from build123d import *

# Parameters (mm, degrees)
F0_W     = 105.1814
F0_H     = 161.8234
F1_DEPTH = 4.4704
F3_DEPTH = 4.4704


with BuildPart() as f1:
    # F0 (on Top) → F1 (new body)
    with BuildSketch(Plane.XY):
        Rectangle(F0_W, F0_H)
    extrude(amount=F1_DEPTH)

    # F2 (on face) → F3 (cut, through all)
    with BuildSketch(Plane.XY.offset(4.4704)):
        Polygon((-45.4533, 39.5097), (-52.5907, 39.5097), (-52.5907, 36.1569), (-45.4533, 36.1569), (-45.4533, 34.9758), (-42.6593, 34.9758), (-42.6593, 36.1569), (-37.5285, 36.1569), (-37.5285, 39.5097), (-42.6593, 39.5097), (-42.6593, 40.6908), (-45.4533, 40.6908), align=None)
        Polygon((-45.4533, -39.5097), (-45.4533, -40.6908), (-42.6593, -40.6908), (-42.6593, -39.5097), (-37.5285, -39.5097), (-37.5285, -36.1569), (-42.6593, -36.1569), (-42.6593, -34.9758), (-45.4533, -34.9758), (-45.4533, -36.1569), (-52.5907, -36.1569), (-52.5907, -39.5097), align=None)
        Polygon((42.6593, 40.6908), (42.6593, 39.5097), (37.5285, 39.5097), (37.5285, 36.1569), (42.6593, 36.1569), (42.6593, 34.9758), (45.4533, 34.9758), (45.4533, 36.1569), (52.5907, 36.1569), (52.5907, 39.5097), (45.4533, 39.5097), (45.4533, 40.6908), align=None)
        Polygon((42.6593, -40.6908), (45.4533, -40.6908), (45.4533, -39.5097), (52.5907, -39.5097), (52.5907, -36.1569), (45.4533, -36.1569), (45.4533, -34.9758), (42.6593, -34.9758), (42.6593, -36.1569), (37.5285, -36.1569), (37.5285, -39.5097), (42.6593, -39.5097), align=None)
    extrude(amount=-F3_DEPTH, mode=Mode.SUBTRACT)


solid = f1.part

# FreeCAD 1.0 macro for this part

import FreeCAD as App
import Part
import Sketcher

V = App.Vector
Q = App.Units.Quantity

doc = App.newDocument("Part")
body = doc.addObject("PartDesign::Body", "Body")

# Sketch on XY plane
sketch1 = doc.addObject("Sketcher::SketchObject", "Sketch")
body.addObject(sketch1)
sketch1.AttachmentSupport = (doc.XY_Plane, [""])
sketch1.MapMode = "FlatFace"
sketch1.addGeometry(Part.LineSegment(V(-53, 81, 0), V(-53, -81, 0)), False)
sketch1.addGeometry(Part.LineSegment(V(-53, -81, 0), V(53, -81, 0)), False)
sketch1.addGeometry(Part.LineSegment(V(53, -81, 0), V(53, 81, 0)), False)
sketch1.addGeometry(Part.LineSegment(V(53, 81, 0), V(-53, 81, 0)), False)
sketch1.addConstraint(Sketcher.Constraint("Coincident", 0, 2, 1, 1))
sketch1.addConstraint(Sketcher.Constraint("Coincident", 1, 2, 2, 1))
sketch1.addConstraint(Sketcher.Constraint("Coincident", 2, 2, 3, 1))
sketch1.addConstraint(Sketcher.Constraint("Coincident", 3, 2, 0, 1))
sketch1.addConstraint(Sketcher.Constraint("Vertical", 0))
sketch1.addConstraint(Sketcher.Constraint("Horizontal", 1))
sketch1.addConstraint(Sketcher.Constraint("Vertical", 2))
sketch1.addConstraint(Sketcher.Constraint("Horizontal", 3))
sketch1.addConstraint(Sketcher.Constraint("Symmetric", 0, 2, 2, 2, -1, 1))
sketch1.addConstraint(Sketcher.Constraint("DistanceX", 1, 1, 1, 2, Q("4.141 in")))
sketch1.addConstraint(Sketcher.Constraint("DistanceY", 0, 2, 0, 1, Q("6.371 in")))
pad1 = doc.addObject("PartDesign::Pad", "Pad")
body.addObject(pad1)
pad1.Profile = sketch1
pad1.Length = Q("0.176 in")

# Sketch on XY plane
sketch2 = doc.addObject("Sketcher::SketchObject", "Sketch001")
body.addObject(sketch2)
sketch2.AttachmentSupport = (doc.XY_Plane, [""])
sketch2.MapMode = "FlatFace"
sketch2.AttachmentOffset = App.Placement(V(0, 0, 0.176 * 25.4), App.Rotation())
sketch2.addGeometry(Part.LineSegment(V(-45.5, 39.5, 0), V(-52.6, 39.5, 0)), False)
sketch2.addGeometry(Part.LineSegment(V(-52.6, 39.5, 0), V(-52.6, 36.2, 0)), False)
sketch2.addGeometry(Part.LineSegment(V(-52.6, 36.2, 0), V(-45.5, 36.2, 0)), False)
sketch2.addGeometry(Part.LineSegment(V(-45.5, 36.2, 0), V(-45.5, 35, 0)), False)
sketch2.addGeometry(Part.LineSegment(V(-45.5, 35, 0), V(-42.7, 35, 0)), False)
sketch2.addGeometry(Part.LineSegment(V(-42.7, 35, 0), V(-42.7, 36.2, 0)), False)
sketch2.addGeometry(Part.LineSegment(V(-42.7, 36.2, 0), V(-37.5, 36.2, 0)), False)
sketch2.addGeometry(Part.LineSegment(V(-37.5, 36.2, 0), V(-37.5, 39.5, 0)), False)
sketch2.addGeometry(Part.LineSegment(V(-37.5, 39.5, 0), V(-42.7, 39.5, 0)), False)
sketch2.addGeometry(Part.LineSegment(V(-42.7, 39.5, 0), V(-42.7, 40.7, 0)), False)
sketch2.addGeometry(Part.LineSegment(V(-42.7, 40.7, 0), V(-45.5, 40.7, 0)), False)
sketch2.addGeometry(Part.LineSegment(V(-45.5, 40.7, 0), V(-45.5, 39.5, 0)), False)
sketch2.addGeometry(Part.LineSegment(V(-45.5, -39.5, 0), V(-45.5, -40.7, 0)), False)
sketch2.addGeometry(Part.LineSegment(V(-45.5, -40.7, 0), V(-42.7, -40.7, 0)), False)
sketch2.addGeometry(Part.LineSegment(V(-42.7, -40.7, 0), V(-42.7, -39.5, 0)), False)
sketch2.addGeometry(Part.LineSegment(V(-42.7, -39.5, 0), V(-37.5, -39.5, 0)), False)
sketch2.addGeometry(Part.LineSegment(V(-37.5, -39.5, 0), V(-37.5, -36.2, 0)), False)
sketch2.addGeometry(Part.LineSegment(V(-37.5, -36.2, 0), V(-42.7, -36.2, 0)), False)
sketch2.addGeometry(Part.LineSegment(V(-42.7, -36.2, 0), V(-42.7, -35, 0)), False)
sketch2.addGeometry(Part.LineSegment(V(-42.7, -35, 0), V(-45.5, -35, 0)), False)
sketch2.addGeometry(Part.LineSegment(V(-45.5, -35, 0), V(-45.5, -36.2, 0)), False)
sketch2.addGeometry(Part.LineSegment(V(-45.5, -36.2, 0), V(-52.6, -36.2, 0)), False)
sketch2.addGeometry(Part.LineSegment(V(-52.6, -36.2, 0), V(-52.6, -39.5, 0)), False)
sketch2.addGeometry(Part.LineSegment(V(-52.6, -39.5, 0), V(-45.5, -39.5, 0)), False)
sketch2.addGeometry(Part.LineSegment(V(42.7, 40.7, 0), V(42.7, 39.5, 0)), False)
sketch2.addGeometry(Part.LineSegment(V(42.7, 39.5, 0), V(37.5, 39.5, 0)), False)
sketch2.addGeometry(Part.LineSegment(V(37.5, 39.5, 0), V(37.5, 36.2, 0)), False)
sketch2.addGeometry(Part.LineSegment(V(37.5, 36.2, 0), V(42.7, 36.2, 0)), False)
sketch2.addGeometry(Part.LineSegment(V(42.7, 36.2, 0), V(42.7, 35, 0)), False)
sketch2.addGeometry(Part.LineSegment(V(42.7, 35, 0), V(45.5, 35, 0)), False)
sketch2.addGeometry(Part.LineSegment(V(45.5, 35, 0), V(45.5, 36.2, 0)), False)
sketch2.addGeometry(Part.LineSegment(V(45.5, 36.2, 0), V(52.6, 36.2, 0)), False)
sketch2.addGeometry(Part.LineSegment(V(52.6, 36.2, 0), V(52.6, 39.5, 0)), False)
sketch2.addGeometry(Part.LineSegment(V(52.6, 39.5, 0), V(45.5, 39.5, 0)), False)
sketch2.addGeometry(Part.LineSegment(V(45.5, 39.5, 0), V(45.5, 40.7, 0)), False)
sketch2.addGeometry(Part.LineSegment(V(45.5, 40.7, 0), V(42.7, 40.7, 0)), False)
sketch2.addGeometry(Part.LineSegment(V(42.7, -40.7, 0), V(45.5, -40.7, 0)), False)
sketch2.addGeometry(Part.LineSegment(V(45.5, -40.7, 0), V(45.5, -39.5, 0)), False)
sketch2.addGeometry(Part.LineSegment(V(45.5, -39.5, 0), V(52.6, -39.5, 0)), False)
sketch2.addGeometry(Part.LineSegment(V(52.6, -39.5, 0), V(52.6, -36.2, 0)), False)
sketch2.addGeometry(Part.LineSegment(V(52.6, -36.2, 0), V(45.5, -36.2, 0)), False)
sketch2.addGeometry(Part.LineSegment(V(45.5, -36.2, 0), V(45.5, -35, 0)), False)
sketch2.addGeometry(Part.LineSegment(V(45.5, -35, 0), V(42.7, -35, 0)), False)
sketch2.addGeometry(Part.LineSegment(V(42.7, -35, 0), V(42.7, -36.2, 0)), False)
sketch2.addGeometry(Part.LineSegment(V(42.7, -36.2, 0), V(37.5, -36.2, 0)), False)
sketch2.addGeometry(Part.LineSegment(V(37.5, -36.2, 0), V(37.5, -39.5, 0)), False)
sketch2.addGeometry(Part.LineSegment(V(37.5, -39.5, 0), V(42.7, -39.5, 0)), False)
sketch2.addGeometry(Part.LineSegment(V(42.7, -39.5, 0), V(42.7, -40.7, 0)), False)
sketch2.addConstraint(Sketcher.Constraint("Coincident", 0, 2, 1, 1))
sketch2.addConstraint(Sketcher.Constraint("Coincident", 1, 2, 2, 1))
sketch2.addConstraint(Sketcher.Constraint("Coincident", 2, 2, 3, 1))
sketch2.addConstraint(Sketcher.Constraint("Coincident", 3, 2, 4, 1))
sketch2.addConstraint(Sketcher.Constraint("Coincident", 4, 2, 5, 1))
sketch2.addConstraint(Sketcher.Constraint("Coincident", 5, 2, 6, 1))
sketch2.addConstraint(Sketcher.Constraint("Coincident", 6, 2, 7, 1))
sketch2.addConstraint(Sketcher.Constraint("Coincident", 7, 2, 8, 1))
sketch2.addConstraint(Sketcher.Constraint("Coincident", 8, 2, 9, 1))
sketch2.addConstraint(Sketcher.Constraint("Coincident", 9, 2, 10, 1))
sketch2.addConstraint(Sketcher.Constraint("Coincident", 10, 2, 11, 1))
sketch2.addConstraint(Sketcher.Constraint("Coincident", 11, 2, 0, 1))
sketch2.addConstraint(Sketcher.Constraint("Coincident", 12, 2, 13, 1))
sketch2.addConstraint(Sketcher.Constraint("Coincident", 13, 2, 14, 1))
sketch2.addConstraint(Sketcher.Constraint("Coincident", 14, 2, 15, 1))
sketch2.addConstraint(Sketcher.Constraint("Coincident", 15, 2, 16, 1))
sketch2.addConstraint(Sketcher.Constraint("Coincident", 16, 2, 17, 1))
sketch2.addConstraint(Sketcher.Constraint("Coincident", 17, 2, 18, 1))
sketch2.addConstraint(Sketcher.Constraint("Coincident", 18, 2, 19, 1))
sketch2.addConstraint(Sketcher.Constraint("Coincident", 19, 2, 20, 1))
sketch2.addConstraint(Sketcher.Constraint("Coincident", 20, 2, 21, 1))
sketch2.addConstraint(Sketcher.Constraint("Coincident", 21, 2, 22, 1))
sketch2.addConstraint(Sketcher.Constraint("Coincident", 22, 2, 23, 1))
sketch2.addConstraint(Sketcher.Constraint("Coincident", 23, 2, 12, 1))
sketch2.addConstraint(Sketcher.Constraint("Coincident", 24, 2, 25, 1))
sketch2.addConstraint(Sketcher.Constraint("Coincident", 25, 2, 26, 1))
sketch2.addConstraint(Sketcher.Constraint("Coincident", 26, 2, 27, 1))
sketch2.addConstraint(Sketcher.Constraint("Coincident", 27, 2, 28, 1))
sketch2.addConstraint(Sketcher.Constraint("Coincident", 28, 2, 29, 1))
sketch2.addConstraint(Sketcher.Constraint("Coincident", 29, 2, 30, 1))
sketch2.addConstraint(Sketcher.Constraint("Coincident", 30, 2, 31, 1))
sketch2.addConstraint(Sketcher.Constraint("Coincident", 31, 2, 32, 1))
sketch2.addConstraint(Sketcher.Constraint("Coincident", 32, 2, 33, 1))
sketch2.addConstraint(Sketcher.Constraint("Coincident", 33, 2, 34, 1))
sketch2.addConstraint(Sketcher.Constraint("Coincident", 34, 2, 35, 1))
sketch2.addConstraint(Sketcher.Constraint("Coincident", 35, 2, 24, 1))
sketch2.addConstraint(Sketcher.Constraint("Coincident", 36, 2, 37, 1))
sketch2.addConstraint(Sketcher.Constraint("Coincident", 37, 2, 38, 1))
sketch2.addConstraint(Sketcher.Constraint("Coincident", 38, 2, 39, 1))
sketch2.addConstraint(Sketcher.Constraint("Coincident", 39, 2, 40, 1))
sketch2.addConstraint(Sketcher.Constraint("Coincident", 40, 2, 41, 1))
sketch2.addConstraint(Sketcher.Constraint("Coincident", 41, 2, 42, 1))
sketch2.addConstraint(Sketcher.Constraint("Coincident", 42, 2, 43, 1))
sketch2.addConstraint(Sketcher.Constraint("Coincident", 43, 2, 44, 1))
sketch2.addConstraint(Sketcher.Constraint("Coincident", 44, 2, 45, 1))
sketch2.addConstraint(Sketcher.Constraint("Coincident", 45, 2, 46, 1))
sketch2.addConstraint(Sketcher.Constraint("Coincident", 46, 2, 47, 1))
sketch2.addConstraint(Sketcher.Constraint("Coincident", 47, 2, 36, 1))
sketch2.addConstraint(Sketcher.Constraint("Horizontal", 0))
sketch2.addConstraint(Sketcher.Constraint("Vertical", 1))
sketch2.addConstraint(Sketcher.Constraint("Horizontal", 2))
sketch2.addConstraint(Sketcher.Constraint("Vertical", 3))
sketch2.addConstraint(Sketcher.Constraint("Horizontal", 4))
sketch2.addConstraint(Sketcher.Constraint("Vertical", 5))
sketch2.addConstraint(Sketcher.Constraint("Horizontal", 6))
sketch2.addConstraint(Sketcher.Constraint("Vertical", 7))
sketch2.addConstraint(Sketcher.Constraint("Horizontal", 8))
sketch2.addConstraint(Sketcher.Constraint("Vertical", 9))
sketch2.addConstraint(Sketcher.Constraint("Horizontal", 10))
sketch2.addConstraint(Sketcher.Constraint("Vertical", 11))
sketch2.addConstraint(Sketcher.Constraint("Vertical", 12))
sketch2.addConstraint(Sketcher.Constraint("Horizontal", 13))
sketch2.addConstraint(Sketcher.Constraint("Vertical", 14))
sketch2.addConstraint(Sketcher.Constraint("Horizontal", 15))
sketch2.addConstraint(Sketcher.Constraint("Vertical", 16))
sketch2.addConstraint(Sketcher.Constraint("Horizontal", 17))
sketch2.addConstraint(Sketcher.Constraint("Vertical", 18))
sketch2.addConstraint(Sketcher.Constraint("Horizontal", 19))
sketch2.addConstraint(Sketcher.Constraint("Vertical", 20))
sketch2.addConstraint(Sketcher.Constraint("Horizontal", 21))
sketch2.addConstraint(Sketcher.Constraint("Vertical", 22))
sketch2.addConstraint(Sketcher.Constraint("Horizontal", 23))
sketch2.addConstraint(Sketcher.Constraint("Vertical", 24))
sketch2.addConstraint(Sketcher.Constraint("Horizontal", 25))
sketch2.addConstraint(Sketcher.Constraint("Vertical", 26))
sketch2.addConstraint(Sketcher.Constraint("Horizontal", 27))
sketch2.addConstraint(Sketcher.Constraint("Vertical", 28))
sketch2.addConstraint(Sketcher.Constraint("Horizontal", 29))
sketch2.addConstraint(Sketcher.Constraint("Vertical", 30))
sketch2.addConstraint(Sketcher.Constraint("Horizontal", 31))
sketch2.addConstraint(Sketcher.Constraint("Vertical", 32))
sketch2.addConstraint(Sketcher.Constraint("Horizontal", 33))
sketch2.addConstraint(Sketcher.Constraint("Vertical", 34))
sketch2.addConstraint(Sketcher.Constraint("Horizontal", 35))
sketch2.addConstraint(Sketcher.Constraint("Horizontal", 36))
sketch2.addConstraint(Sketcher.Constraint("Vertical", 37))
sketch2.addConstraint(Sketcher.Constraint("Horizontal", 38))
sketch2.addConstraint(Sketcher.Constraint("Vertical", 39))
sketch2.addConstraint(Sketcher.Constraint("Horizontal", 40))
sketch2.addConstraint(Sketcher.Constraint("Vertical", 41))
sketch2.addConstraint(Sketcher.Constraint("Horizontal", 42))
sketch2.addConstraint(Sketcher.Constraint("Vertical", 43))
sketch2.addConstraint(Sketcher.Constraint("Horizontal", 44))
sketch2.addConstraint(Sketcher.Constraint("Vertical", 45))
sketch2.addConstraint(Sketcher.Constraint("Horizontal", 46))
sketch2.addConstraint(Sketcher.Constraint("Vertical", 47))
sketch2.addConstraint(Sketcher.Constraint("Symmetric", 14, 2, 24, 2, -1, 1))
sketch2.addConstraint(Sketcher.Constraint("Symmetric", 16, 2, 26, 2, -1, 1))
sketch2.addConstraint(Sketcher.Constraint("Symmetric", 18, 2, 28, 2, -1, 1))
sketch2.addConstraint(Sketcher.Constraint("Symmetric", 20, 2, 30, 2, -1, 1))
sketch2.addConstraint(Sketcher.Constraint("Symmetric", 22, 2, 32, 2, -1, 1))
sketch2.addConstraint(Sketcher.Constraint("Symmetric", 12, 2, 34, 2, -1, 1))
sketch2.addConstraint(Sketcher.Constraint("Symmetric", 10, 2, 36, 2, -1, 1))
sketch2.addConstraint(Sketcher.Constraint("Symmetric", 0, 2, 38, 2, -1, 1))
sketch2.addConstraint(Sketcher.Constraint("Symmetric", 2, 2, 40, 2, -1, 1))
sketch2.addConstraint(Sketcher.Constraint("Symmetric", 4, 2, 42, 2, -1, 1))
sketch2.addConstraint(Sketcher.Constraint("Symmetric", 6, 2, 44, 2, -1, 1))
sketch2.addConstraint(Sketcher.Constraint("Symmetric", 8, 2, 46, 2, -1, 1))
sketch2.addConstraint(Sketcher.Constraint("Symmetric", 8, 2, 24, 2, -2))
sketch2.addConstraint(Sketcher.Constraint("Symmetric", 6, 2, 26, 2, -2))
sketch2.addConstraint(Sketcher.Constraint("Symmetric", 4, 2, 28, 2, -2))
sketch2.addConstraint(Sketcher.Constraint("Symmetric", 2, 2, 30, 2, -2))
sketch2.addConstraint(Sketcher.Constraint("Symmetric", 0, 2, 32, 2, -2))
sketch2.addConstraint(Sketcher.Constraint("Symmetric", 10, 2, 34, 2, -2))
sketch2.addConstraint(Sketcher.Constraint("Horizontal", 2, 2, 5, 2))
sketch2.addConstraint(Sketcher.Constraint("Horizontal", 0, 2, 7, 2))
sketch2.addConstraint(Sketcher.Constraint("Vertical", 5, 2, 8, 2))
sketch2.addConstraint(Sketcher.Constraint("Vertical", 3, 2, 10, 2))
sketch2.addConstraint(Sketcher.Constraint("Equal", 5, 9))
sketch2.addConstraint(Sketcher.Constraint("DistanceX", 4, 1, 4, 2, Q("0.11 in")))
sketch2.addConstraint(Sketcher.Constraint("DistanceX", 0, 2, 0, 1, Q("0.281 in")))
sketch2.addConstraint(Sketcher.Constraint("DistanceX", 6, 1, 6, 2, Q("0.202 in")))
sketch2.addConstraint(Sketcher.Constraint("DistanceY", 1, 2, 1, 1, Q("0.132 in")))
sketch2.addConstraint(Sketcher.Constraint("DistanceY", 3, 2, 3, 1, Q("0.0465 in")))
sketch2.addConstraint(Sketcher.Constraint("DistanceY", -1, 1, 3, 2, Q("1.377 in")))
sketch2.addConstraint(Sketcher.Constraint("DistanceX", 7, 2, 24, 2, Q("3.157 in")))
pocket1 = doc.addObject("PartDesign::Pocket", "Pocket")
body.addObject(pocket1)
pocket1.Profile = sketch2
pocket1.Type = "ThroughAll"

doc.recompute()
